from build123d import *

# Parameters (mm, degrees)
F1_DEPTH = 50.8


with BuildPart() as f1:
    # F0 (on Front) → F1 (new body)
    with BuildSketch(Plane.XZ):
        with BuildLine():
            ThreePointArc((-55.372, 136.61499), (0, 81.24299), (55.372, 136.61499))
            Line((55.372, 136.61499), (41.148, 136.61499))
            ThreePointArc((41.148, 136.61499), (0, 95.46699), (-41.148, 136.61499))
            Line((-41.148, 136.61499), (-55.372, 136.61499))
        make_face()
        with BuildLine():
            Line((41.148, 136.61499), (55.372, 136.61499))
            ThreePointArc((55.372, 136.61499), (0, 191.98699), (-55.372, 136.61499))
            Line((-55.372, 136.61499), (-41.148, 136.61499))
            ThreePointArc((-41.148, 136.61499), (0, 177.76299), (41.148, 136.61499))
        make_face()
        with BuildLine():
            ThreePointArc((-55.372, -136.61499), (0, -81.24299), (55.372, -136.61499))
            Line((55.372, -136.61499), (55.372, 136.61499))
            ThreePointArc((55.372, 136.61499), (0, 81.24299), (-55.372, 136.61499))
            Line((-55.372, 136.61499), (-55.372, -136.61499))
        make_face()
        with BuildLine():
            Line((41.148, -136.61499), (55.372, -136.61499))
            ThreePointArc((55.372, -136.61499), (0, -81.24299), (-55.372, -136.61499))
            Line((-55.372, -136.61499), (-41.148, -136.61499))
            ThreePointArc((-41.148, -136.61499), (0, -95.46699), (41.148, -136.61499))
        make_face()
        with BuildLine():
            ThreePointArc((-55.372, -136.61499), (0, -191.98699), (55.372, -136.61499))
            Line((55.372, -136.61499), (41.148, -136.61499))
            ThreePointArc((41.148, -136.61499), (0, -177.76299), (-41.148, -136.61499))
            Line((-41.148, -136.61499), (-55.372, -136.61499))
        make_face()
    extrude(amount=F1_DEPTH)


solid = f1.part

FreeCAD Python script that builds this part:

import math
import FreeCAD as App
import Part
import Sketcher
Q = App.Units.Quantity

doc = App.newDocument("Part")
body = doc.addObject("PartDesign::Body", "Body")

# Sketch on XZ plane
sketch1 = body.newObject("Sketcher::SketchObject", "Sketch")
sketch1.AttachmentSupport = (doc.getObject("XZ_Plane"), [""])
sketch1.MapMode = "FlatFace"
sketch1.addGeometry(Part.ArcOfCircle(Part.Circle(App.Vector(0, 137, 0), App.Vector(0, 0, 1), 55), math.radians(0), math.radians(180)), False)
sketch1.addGeometry(Part.LineSegment(App.Vector(-55, 137, 0), App.Vector(-55, -137, 0)), False)
sketch1.addGeometry(Part.ArcOfCircle(Part.Circle(App.Vector(0, -137, 0), App.Vector(0, 0, 1), 55), math.radians(180), math.radians(360)), False)
sketch1.addGeometry(Part.LineSegment(App.Vector(55, -137, 0), App.Vector(55, 137, 0)), False)
sketch1.addGeometry(Part.Circle(App.Vector(0, -137, 0), App.Vector(0, 0, 1), 41), False)
sketch1.addGeometry(Part.Circle(App.Vector(0, 137, 0), App.Vector(0, 0, 1), 41), False)
sketch1.addConstraint(Sketcher.Constraint("Tangent", 0, 2, 1, 1))
sketch1.addConstraint(Sketcher.Constraint("Tangent", 1, 2, 2, 1))
sketch1.addConstraint(Sketcher.Constraint("Tangent", 2, 2, 3, 1))
sketch1.addConstraint(Sketcher.Constraint("Tangent", 3, 2, 0, 1))
sketch1.addConstraint(Sketcher.Constraint("Vertical", 1))
sketch1.addConstraint(Sketcher.Constraint("Vertical", 3))
sketch1.addConstraint(Sketcher.Constraint("Coincident", 4, 3, 2, 3))
sketch1.addConstraint(Sketcher.Constraint("Coincident", 5, 3, 0, 3))
sketch1.addConstraint(Sketcher.Constraint("Equal", 4, 5))
sketch1.addConstraint(Sketcher.Constraint("Symmetric", 0, 3, 2, 3, -1, 1))
sketch1.addConstraint(Sketcher.Constraint("Diameter", 4, Q("3.24 in")))
sketch1.addConstraint(Sketcher.Constraint("Radius", 0, Q("2.18 in")))
sketch1.addConstraint(Sketcher.Constraint("DistanceY", 1, 2, 1, 1, 273.22998))
pad1 = body.newObject("PartDesign::Pad", "Pad")
pad1.Profile = sketch1
pad1.Length = Q("2 in")

doc.recompute()
